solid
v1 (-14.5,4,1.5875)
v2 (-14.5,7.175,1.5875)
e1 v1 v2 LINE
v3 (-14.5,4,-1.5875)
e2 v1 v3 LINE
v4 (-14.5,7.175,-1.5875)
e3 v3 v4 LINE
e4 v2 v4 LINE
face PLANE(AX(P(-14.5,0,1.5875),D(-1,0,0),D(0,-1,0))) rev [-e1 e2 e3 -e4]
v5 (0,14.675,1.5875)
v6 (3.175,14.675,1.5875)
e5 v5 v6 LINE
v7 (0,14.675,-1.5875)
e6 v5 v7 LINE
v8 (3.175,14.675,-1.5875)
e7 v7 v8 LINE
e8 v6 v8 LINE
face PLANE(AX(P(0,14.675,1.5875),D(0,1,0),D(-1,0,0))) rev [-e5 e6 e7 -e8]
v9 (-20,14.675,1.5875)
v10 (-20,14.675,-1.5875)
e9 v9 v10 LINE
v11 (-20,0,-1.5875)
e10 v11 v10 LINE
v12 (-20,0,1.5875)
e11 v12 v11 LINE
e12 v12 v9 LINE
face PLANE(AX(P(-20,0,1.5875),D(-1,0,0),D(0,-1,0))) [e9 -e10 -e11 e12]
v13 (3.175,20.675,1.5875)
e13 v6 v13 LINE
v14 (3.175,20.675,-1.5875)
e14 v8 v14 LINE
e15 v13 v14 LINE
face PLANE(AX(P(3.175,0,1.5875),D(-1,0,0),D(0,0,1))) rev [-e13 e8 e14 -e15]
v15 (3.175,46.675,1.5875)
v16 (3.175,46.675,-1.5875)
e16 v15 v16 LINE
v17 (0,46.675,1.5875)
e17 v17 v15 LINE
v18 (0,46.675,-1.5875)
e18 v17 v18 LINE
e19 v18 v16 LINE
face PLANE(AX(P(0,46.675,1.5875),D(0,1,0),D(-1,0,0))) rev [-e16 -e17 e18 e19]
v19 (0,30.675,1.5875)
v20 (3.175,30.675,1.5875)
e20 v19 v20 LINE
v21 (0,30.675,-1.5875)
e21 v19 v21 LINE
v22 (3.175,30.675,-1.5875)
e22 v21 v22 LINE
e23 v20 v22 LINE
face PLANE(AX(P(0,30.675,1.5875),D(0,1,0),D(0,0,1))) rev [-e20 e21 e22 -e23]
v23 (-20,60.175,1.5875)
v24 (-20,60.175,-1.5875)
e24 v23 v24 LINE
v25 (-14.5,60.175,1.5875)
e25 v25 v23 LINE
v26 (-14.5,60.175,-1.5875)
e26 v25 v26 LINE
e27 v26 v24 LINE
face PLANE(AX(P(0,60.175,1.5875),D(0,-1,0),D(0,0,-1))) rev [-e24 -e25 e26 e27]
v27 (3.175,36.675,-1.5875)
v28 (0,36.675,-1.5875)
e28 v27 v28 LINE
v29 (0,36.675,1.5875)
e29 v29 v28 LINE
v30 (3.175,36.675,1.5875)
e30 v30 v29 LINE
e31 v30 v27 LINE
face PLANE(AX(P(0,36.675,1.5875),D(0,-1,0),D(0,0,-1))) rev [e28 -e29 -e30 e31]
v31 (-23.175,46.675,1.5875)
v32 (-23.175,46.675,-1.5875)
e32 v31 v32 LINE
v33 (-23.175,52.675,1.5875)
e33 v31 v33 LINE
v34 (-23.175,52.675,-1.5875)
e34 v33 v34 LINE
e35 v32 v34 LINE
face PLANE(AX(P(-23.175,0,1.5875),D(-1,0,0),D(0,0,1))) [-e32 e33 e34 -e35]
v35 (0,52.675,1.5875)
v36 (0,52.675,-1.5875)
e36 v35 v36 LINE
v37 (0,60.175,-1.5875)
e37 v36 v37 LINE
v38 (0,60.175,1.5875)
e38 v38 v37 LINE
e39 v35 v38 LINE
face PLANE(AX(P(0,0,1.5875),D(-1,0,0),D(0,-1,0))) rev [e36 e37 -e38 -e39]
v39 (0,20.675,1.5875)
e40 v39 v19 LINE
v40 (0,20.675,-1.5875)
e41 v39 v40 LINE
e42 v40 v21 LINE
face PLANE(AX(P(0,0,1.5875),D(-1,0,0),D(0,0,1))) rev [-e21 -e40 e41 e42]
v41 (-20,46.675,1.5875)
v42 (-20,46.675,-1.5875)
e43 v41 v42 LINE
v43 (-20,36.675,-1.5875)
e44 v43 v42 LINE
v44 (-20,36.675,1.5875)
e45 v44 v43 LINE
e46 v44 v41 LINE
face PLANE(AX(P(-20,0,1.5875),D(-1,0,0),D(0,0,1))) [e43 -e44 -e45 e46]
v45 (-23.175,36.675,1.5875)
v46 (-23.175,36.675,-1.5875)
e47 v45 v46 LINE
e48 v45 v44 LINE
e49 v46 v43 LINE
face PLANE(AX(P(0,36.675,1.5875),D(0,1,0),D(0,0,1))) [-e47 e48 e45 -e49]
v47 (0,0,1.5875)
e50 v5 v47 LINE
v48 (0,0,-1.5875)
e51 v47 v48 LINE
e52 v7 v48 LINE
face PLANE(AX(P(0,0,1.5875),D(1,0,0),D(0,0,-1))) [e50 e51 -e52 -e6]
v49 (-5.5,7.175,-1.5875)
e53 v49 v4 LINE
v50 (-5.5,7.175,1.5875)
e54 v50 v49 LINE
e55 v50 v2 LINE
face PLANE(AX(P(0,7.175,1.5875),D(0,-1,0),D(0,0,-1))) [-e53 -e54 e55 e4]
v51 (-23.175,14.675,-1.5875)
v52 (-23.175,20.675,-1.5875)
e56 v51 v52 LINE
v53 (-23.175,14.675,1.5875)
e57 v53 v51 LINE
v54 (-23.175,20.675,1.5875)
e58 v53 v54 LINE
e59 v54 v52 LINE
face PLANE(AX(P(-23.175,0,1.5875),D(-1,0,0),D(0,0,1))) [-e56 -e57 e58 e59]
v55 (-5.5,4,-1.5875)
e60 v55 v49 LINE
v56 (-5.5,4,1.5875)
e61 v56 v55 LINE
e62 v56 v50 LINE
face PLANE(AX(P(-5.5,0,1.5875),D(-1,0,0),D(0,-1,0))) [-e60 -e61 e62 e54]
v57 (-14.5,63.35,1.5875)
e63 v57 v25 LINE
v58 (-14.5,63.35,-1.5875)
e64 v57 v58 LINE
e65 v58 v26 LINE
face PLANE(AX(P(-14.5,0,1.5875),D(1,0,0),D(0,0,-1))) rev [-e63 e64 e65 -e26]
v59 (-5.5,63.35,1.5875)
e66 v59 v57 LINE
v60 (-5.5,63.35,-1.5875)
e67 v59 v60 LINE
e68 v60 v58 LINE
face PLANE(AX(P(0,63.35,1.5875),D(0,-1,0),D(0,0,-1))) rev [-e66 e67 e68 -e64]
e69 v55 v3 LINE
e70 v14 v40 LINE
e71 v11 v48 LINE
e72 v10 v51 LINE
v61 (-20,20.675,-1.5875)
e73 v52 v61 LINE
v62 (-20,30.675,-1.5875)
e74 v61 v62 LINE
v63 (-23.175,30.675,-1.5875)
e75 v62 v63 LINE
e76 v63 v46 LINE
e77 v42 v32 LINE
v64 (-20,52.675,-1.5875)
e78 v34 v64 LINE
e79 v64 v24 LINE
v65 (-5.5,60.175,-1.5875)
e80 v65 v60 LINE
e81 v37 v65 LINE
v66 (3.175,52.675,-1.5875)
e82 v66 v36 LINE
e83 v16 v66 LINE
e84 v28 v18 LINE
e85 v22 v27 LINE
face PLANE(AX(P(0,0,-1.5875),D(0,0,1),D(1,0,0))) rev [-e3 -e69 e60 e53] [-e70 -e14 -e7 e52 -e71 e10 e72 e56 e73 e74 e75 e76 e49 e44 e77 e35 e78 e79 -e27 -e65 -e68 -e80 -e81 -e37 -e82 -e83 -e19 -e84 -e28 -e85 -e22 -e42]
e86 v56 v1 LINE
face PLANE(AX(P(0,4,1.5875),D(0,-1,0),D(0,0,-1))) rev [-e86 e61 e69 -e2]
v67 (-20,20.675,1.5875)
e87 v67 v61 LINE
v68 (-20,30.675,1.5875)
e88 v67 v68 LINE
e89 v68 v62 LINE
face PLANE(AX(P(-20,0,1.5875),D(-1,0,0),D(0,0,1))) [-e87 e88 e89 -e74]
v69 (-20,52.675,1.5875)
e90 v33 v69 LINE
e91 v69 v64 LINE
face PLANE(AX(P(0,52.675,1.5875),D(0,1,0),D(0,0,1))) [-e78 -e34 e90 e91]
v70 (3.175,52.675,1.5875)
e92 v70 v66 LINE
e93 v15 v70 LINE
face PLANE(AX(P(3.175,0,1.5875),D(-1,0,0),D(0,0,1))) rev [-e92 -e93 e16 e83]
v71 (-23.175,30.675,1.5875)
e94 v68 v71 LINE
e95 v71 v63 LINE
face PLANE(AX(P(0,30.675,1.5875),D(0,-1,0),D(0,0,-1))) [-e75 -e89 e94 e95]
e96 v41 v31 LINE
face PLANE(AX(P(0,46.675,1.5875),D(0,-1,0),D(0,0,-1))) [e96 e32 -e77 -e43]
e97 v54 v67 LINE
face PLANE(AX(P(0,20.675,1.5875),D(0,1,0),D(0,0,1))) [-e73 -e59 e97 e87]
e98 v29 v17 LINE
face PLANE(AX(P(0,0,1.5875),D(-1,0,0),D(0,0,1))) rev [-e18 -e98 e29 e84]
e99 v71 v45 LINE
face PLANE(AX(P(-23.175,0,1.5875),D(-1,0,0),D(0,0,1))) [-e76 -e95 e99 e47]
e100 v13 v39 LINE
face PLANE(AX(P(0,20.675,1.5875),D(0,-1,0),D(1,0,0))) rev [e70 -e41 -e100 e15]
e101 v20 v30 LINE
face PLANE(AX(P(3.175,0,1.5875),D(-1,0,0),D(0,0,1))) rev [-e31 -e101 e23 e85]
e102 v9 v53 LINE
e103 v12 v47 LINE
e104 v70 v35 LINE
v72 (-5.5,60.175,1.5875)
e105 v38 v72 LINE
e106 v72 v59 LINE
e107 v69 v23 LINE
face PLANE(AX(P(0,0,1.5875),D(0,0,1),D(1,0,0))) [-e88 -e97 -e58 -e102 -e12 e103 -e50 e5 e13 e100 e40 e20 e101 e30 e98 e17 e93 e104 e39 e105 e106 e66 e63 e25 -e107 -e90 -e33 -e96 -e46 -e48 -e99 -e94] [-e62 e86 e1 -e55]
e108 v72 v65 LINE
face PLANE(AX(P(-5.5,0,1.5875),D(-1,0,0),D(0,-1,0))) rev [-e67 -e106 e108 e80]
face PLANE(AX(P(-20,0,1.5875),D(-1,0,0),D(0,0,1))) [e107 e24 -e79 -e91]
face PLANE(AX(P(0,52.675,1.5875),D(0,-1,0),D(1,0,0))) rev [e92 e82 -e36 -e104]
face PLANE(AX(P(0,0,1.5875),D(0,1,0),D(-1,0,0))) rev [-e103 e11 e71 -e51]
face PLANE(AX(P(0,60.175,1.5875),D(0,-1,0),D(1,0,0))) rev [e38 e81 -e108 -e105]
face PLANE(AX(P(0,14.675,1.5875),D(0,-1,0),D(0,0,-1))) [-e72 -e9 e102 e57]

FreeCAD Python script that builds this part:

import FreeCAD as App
import Part
import Sketcher
from FreeCAD import Vector


def add_polygon(sketch, points):
    """Adds a closed chain of lines whose ends are joined by coincident constraints."""
    first, n = sketch.GeometryCount, len(points)
    for a, b in zip(points, points[1:] + points[:1]):
        sketch.addGeometry(Part.LineSegment(App.Vector(*a, 0), App.Vector(*b, 0)), False)
    for i in range(n):
        sketch.addConstraint(Sketcher.Constraint("Coincident", first + i, 2, first + (i + 1) % n, 1))

doc = App.newDocument("Part")
body = doc.addObject("PartDesign::Body", "Body")

# Sketch on XY plane
sketch1 = body.newObject("Sketcher::SketchObject", "Sketch")
sketch1.AttachmentSupport = (doc.getObject("XY_Plane"), [""])
sketch1.MapMode = "FlatFace"
add_polygon(sketch1, [(0, 14.7), (3.2, 14.7), (3.2, 20.7), (0, 20.7), (0, 30.7), (3.2, 30.7), (3.2, 36.7), (0, 36.7), (0, 46.7), (3.2, 46.7), (3.2, 52.7), (0, 52.7), (0, 60.2), (-5.5, 60.2), (-5.5, 63.4), (-14.5, 63.4), (-14.5, 60.2), (-20, 60.2), (-20, 52.7), (-23.2, 52.7), (-23.2, 46.7), (-20, 46.7), (-20, 36.7), (-23.2, 36.7), (-23.2, 30.7), (-20, 30.7), (-20, 20.7), (-23.2, 20.7), (-23.2, 14.7), (-20, 14.7), (-20, 0), (0, 0)])  # lines 0-31
add_polygon(sketch1, [(-5.5, 4), (-14.5, 4), (-14.5, 7.2), (-5.5, 7.2)])  # lines 32-35
sketch1.addConstraint([
    Sketcher.Constraint("Horizontal", 0),
    Sketcher.Constraint("Vertical", 1),
    Sketcher.Constraint("Horizontal", 2),
    Sketcher.Constraint("Vertical", 3),
    Sketcher.Constraint("Horizontal", 4),
    Sketcher.Constraint("Vertical", 5),
    Sketcher.Constraint("Horizontal", 6),
    Sketcher.Constraint("Vertical", 7),
    Sketcher.Constraint("Horizontal", 8),
    Sketcher.Constraint("Vertical", 9),
    Sketcher.Constraint("Horizontal", 10),
    Sketcher.Constraint("Vertical", 11),
    Sketcher.Constraint("Horizontal", 12),
    Sketcher.Constraint("Vertical", 13),
    Sketcher.Constraint("Horizontal", 14),
    Sketcher.Constraint("Vertical", 15),
    Sketcher.Constraint("Horizontal", 16),
    Sketcher.Constraint("Vertical", 17),
    Sketcher.Constraint("Horizontal", 18),
    Sketcher.Constraint("Vertical", 19),
    Sketcher.Constraint("Horizontal", 20),
    Sketcher.Constraint("Vertical", 21),
    Sketcher.Constraint("Horizontal", 22),
    Sketcher.Constraint("Vertical", 23),
    Sketcher.Constraint("Horizontal", 24),
    Sketcher.Constraint("Vertical", 25),
    Sketcher.Constraint("Horizontal", 26),
    Sketcher.Constraint("Vertical", 27),
    Sketcher.Constraint("Horizontal", 28),
    Sketcher.Constraint("Vertical", 29),
    Sketcher.Constraint("Horizontal", 30),
    Sketcher.Constraint("Vertical", 31),
    Sketcher.Constraint("Horizontal", 32),
    Sketcher.Constraint("Vertical", 33),
    Sketcher.Constraint("Horizontal", 34),
    Sketcher.Constraint("Vertical", 35),
    Sketcher.Constraint("Coincident", 30, 2, -1, 1),
    Sketcher.Constraint("PointOnObject", 2, 2, -2),
    Sketcher.Constraint("PointOnObject", 6, 2, -2),
    Sketcher.Constraint("PointOnObject", 10, 2, -2),
    Sketcher.Constraint("Horizontal", 12, 2, 15, 2),
    Sketcher.Constraint("Horizontal", 10, 2, 17, 2),
    Sketcher.Constraint("Horizontal", 8, 2, 19, 2),
    Sketcher.Constraint("Horizontal", 6, 2, 21, 2),
    Sketcher.Constraint("Horizontal", 4, 2, 23, 2),
    Sketcher.Constraint("Horizontal", 2, 2, 25, 2),
    Sketcher.Constraint("Horizontal", 0, 2, 27, 2),
    Sketcher.Constraint("Vertical", 1, 2, 4, 2),
    Sketcher.Constraint("Vertical", 5, 2, 8, 2),
    Sketcher.Constraint("Vertical", 17, 2, 20, 2),
    Sketcher.Constraint("Vertical", 19, 2, 22, 2),
    Sketcher.Constraint("Vertical", 21, 2, 24, 2),
    Sketcher.Constraint("Vertical", 23, 2, 26, 2),
    Sketcher.Constraint("Vertical", 25, 2, 28, 2),
    Sketcher.Constraint("Vertical", 15, 2, 32, 2),
    Sketcher.Constraint("Vertical", 13, 2, 34, 2),
    Sketcher.Constraint("Equal", 12, 16),
    Sketcher.Constraint("Equal", 10, 18),
    Sketcher.Constraint("Equal", 1, 5),
    Sketcher.Constraint("Equal", 3, 7),
    Sketcher.Constraint("Equal", 5, 9),
    Sketcher.Constraint("Equal", 28, 13),
    Sketcher.Constraint("Equal", 15, 33),
    Sketcher.Constraint("DistanceX", 14, 2, 14, 1, 9.0),
    Sketcher.Constraint("DistanceX", 30, 1, 30, 2, 20.0),
    Sketcher.Constraint("DistanceY", 1, 1, 1, 2, 6.0),
    Sketcher.Constraint("DistanceY", 3, 1, 3, 2, 10.0),
    Sketcher.Constraint("DistanceY", 11, 1, 11, 2, 7.5),
    Sketcher.Constraint("DistanceY", -1, 1, 32, 2, 4.0),
    Sketcher.Constraint("DistanceY", 33, 2, 28, 2, 7.5),
    Sketcher.Constraint("DistanceX", 0, 1, 0, 2, 3.175),
])
pad1 = body.newObject("PartDesign::Pad", "Pad")
pad1.Profile = sketch1
pad1.Length = 3.175
pad1.Midplane = True

doc.recompute()
